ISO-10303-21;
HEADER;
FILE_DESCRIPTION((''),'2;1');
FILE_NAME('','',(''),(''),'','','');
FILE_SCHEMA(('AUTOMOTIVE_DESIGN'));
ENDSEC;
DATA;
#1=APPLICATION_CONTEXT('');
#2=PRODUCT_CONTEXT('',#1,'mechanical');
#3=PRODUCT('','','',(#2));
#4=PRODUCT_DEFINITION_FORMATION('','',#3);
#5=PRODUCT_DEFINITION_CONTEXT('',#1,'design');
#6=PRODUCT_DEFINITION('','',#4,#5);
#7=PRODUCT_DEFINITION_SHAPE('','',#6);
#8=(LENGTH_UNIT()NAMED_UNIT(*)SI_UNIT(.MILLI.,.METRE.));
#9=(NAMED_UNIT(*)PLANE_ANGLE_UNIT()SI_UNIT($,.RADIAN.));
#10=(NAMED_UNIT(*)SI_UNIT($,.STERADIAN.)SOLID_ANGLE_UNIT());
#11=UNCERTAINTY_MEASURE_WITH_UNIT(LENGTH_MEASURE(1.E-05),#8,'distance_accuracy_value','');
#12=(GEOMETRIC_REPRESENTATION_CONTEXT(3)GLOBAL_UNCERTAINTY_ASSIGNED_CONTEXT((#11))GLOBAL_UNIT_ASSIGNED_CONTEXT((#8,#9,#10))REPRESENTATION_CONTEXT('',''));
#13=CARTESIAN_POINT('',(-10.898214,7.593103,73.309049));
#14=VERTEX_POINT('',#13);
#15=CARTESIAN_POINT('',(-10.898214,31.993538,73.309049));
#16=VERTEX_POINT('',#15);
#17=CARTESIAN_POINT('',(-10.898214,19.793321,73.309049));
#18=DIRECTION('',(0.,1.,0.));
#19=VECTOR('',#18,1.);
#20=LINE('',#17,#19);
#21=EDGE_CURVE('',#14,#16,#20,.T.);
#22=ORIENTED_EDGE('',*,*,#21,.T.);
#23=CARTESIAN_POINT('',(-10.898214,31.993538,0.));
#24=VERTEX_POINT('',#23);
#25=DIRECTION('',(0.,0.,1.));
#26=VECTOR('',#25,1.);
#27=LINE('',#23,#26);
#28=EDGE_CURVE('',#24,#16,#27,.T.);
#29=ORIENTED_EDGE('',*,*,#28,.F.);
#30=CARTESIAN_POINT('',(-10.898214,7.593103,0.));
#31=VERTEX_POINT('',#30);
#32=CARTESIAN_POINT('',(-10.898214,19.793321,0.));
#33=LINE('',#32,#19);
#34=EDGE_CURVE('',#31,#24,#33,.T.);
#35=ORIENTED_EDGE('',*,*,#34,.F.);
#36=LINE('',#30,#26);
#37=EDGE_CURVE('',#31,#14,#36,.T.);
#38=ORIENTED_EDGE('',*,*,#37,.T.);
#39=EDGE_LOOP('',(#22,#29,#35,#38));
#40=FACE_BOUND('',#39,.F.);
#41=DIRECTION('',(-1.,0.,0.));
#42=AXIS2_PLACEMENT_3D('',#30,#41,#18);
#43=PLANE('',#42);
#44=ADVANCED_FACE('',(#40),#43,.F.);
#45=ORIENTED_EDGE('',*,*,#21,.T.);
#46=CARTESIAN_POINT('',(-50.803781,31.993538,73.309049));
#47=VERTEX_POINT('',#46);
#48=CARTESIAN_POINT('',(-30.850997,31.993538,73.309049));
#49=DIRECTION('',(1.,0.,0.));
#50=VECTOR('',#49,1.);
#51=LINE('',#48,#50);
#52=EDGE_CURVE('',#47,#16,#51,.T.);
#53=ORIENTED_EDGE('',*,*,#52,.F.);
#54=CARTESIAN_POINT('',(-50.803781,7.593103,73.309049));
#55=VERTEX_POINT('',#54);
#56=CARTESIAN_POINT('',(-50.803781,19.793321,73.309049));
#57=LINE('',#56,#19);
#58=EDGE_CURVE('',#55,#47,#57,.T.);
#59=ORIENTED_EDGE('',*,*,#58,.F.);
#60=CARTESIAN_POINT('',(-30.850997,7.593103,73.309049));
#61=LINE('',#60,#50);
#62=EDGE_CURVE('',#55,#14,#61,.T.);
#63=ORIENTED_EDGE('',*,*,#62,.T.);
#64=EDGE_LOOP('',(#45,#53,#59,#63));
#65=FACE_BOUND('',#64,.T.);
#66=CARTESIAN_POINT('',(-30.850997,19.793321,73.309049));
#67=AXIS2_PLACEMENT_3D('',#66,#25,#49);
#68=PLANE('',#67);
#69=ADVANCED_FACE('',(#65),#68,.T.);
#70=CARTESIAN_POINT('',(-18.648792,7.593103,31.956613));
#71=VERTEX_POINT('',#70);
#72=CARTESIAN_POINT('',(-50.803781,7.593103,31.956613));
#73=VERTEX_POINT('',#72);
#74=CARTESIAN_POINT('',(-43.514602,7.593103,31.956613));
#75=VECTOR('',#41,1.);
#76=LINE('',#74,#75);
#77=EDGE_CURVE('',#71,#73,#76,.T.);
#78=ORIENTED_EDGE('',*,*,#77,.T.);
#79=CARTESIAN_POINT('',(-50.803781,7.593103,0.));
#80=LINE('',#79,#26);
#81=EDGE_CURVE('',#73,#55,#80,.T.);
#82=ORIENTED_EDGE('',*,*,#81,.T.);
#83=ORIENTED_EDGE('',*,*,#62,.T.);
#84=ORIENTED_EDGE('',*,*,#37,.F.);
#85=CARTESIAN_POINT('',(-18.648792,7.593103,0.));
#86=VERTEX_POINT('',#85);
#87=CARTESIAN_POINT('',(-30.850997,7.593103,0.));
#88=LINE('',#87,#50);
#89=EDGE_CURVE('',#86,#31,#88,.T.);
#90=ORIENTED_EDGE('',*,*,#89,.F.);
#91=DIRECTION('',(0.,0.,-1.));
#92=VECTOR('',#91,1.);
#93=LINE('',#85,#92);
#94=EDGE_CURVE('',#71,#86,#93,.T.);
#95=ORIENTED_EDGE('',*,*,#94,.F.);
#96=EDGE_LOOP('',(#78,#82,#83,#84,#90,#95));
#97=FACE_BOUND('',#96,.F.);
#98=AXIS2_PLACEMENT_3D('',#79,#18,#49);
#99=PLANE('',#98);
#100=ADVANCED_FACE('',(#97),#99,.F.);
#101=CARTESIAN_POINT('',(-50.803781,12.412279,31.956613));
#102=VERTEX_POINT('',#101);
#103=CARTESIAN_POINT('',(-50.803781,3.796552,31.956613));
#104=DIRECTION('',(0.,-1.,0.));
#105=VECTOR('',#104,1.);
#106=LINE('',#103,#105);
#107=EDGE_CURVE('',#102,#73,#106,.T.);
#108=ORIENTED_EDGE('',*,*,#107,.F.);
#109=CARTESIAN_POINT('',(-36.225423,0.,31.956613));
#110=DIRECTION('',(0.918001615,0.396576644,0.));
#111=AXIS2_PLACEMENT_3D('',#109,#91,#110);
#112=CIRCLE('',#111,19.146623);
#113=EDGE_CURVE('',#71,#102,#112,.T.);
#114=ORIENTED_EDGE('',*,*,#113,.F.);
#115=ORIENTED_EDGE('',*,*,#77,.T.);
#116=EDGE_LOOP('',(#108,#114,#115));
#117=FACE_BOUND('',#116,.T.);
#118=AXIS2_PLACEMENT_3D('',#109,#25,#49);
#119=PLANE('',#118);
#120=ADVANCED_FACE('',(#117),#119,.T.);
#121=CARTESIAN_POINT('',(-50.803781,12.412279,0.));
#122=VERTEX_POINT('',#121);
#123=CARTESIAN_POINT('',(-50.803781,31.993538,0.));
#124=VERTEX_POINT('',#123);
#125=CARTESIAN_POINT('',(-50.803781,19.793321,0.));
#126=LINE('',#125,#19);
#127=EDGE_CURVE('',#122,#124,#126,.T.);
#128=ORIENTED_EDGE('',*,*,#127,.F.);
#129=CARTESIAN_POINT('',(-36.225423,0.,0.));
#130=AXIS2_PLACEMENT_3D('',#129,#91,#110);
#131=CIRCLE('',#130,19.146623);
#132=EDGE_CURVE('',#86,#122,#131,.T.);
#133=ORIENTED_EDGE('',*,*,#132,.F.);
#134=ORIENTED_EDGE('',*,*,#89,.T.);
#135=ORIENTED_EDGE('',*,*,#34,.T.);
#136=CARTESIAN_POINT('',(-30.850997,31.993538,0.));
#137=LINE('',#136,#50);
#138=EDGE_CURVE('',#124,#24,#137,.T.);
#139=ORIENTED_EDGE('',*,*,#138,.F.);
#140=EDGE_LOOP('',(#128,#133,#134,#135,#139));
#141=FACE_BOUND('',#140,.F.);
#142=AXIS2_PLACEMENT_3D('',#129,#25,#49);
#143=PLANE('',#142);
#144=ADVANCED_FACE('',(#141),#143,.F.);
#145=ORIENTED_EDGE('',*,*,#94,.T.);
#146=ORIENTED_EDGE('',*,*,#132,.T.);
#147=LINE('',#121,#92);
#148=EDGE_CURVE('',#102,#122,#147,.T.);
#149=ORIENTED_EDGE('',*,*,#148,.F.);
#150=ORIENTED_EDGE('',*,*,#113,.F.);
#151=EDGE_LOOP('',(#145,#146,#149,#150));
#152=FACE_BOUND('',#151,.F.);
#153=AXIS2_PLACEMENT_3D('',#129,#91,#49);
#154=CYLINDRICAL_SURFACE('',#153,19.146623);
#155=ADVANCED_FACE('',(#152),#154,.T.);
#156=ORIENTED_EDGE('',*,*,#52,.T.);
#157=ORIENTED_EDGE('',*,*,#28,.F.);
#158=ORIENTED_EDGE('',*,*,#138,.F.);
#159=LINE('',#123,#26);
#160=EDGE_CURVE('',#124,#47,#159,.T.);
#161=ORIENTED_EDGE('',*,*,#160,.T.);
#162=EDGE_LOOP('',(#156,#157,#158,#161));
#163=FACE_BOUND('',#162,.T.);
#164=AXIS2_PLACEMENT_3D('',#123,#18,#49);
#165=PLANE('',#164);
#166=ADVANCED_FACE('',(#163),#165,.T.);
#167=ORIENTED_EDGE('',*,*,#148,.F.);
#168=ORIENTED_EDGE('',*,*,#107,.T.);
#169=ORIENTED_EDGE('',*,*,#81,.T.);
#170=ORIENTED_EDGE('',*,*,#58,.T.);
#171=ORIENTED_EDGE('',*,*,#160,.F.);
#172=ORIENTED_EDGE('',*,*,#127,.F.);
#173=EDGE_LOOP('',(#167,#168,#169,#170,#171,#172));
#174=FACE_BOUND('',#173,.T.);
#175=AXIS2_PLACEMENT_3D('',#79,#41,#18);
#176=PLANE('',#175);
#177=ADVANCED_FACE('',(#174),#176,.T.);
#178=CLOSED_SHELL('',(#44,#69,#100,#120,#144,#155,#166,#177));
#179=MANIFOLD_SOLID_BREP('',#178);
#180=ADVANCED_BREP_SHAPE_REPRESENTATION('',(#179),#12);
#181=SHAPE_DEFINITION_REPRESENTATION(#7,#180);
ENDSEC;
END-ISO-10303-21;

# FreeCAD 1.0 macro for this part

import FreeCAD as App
import Part
import Sketcher
from FreeCAD import Vector
Q = App.Units.Quantity

doc = App.newDocument("Part")
body = doc.addObject("PartDesign::Body", "Body")

# Sketch on XY plane
sketch1 = body.newObject("Sketcher::SketchObject", "Sketch")
sketch1.AttachmentSupport = (doc.getObject("XY_Plane"), [""])
sketch1.MapMode = "FlatFace"
sketch1.addGeometry(Part.Circle(Vector(-36, 0, 0), Vector(0, 0, 1), 19), False)
sketch1.addConstraint([
    Sketcher.Constraint("PointOnObject", 0, 3, -1),
    Sketcher.Constraint("Diameter", 0, Q("38.293246 mm")),
    Sketcher.Constraint("DistanceX", 0, 3, -1, 1, Q("36.225423 mm")),
])
pad1 = body.newObject("PartDesign::Pad", "Pad")
pad1.Profile = sketch1
pad1.Length = 31.956613

# Sketch on XY plane
sketch2 = body.newObject("Sketcher::SketchObject", "Sketch001")
sketch2.AttachmentSupport = (doc.getObject("XY_Plane"), [""])
sketch2.MapMode = "FlatFace"
sketch2.addGeometry([
    Part.LineSegment(Vector(-51, 32, 0), Vector(-51, 8, 0)),
    Part.LineSegment(Vector(-51, 8, 0), Vector(-11, 8, 0)),
    Part.LineSegment(Vector(-11, 8, 0), Vector(-11, 32, 0)),
    Part.LineSegment(Vector(-11, 32, 0), Vector(-51, 32, 0)),
], False)
sketch2.addConstraint([
    Sketcher.Constraint("Coincident", 0, 2, 1, 1),
    Sketcher.Constraint("Coincident", 1, 2, 2, 1),
    Sketcher.Constraint("Coincident", 2, 2, 3, 1),
    Sketcher.Constraint("Coincident", 3, 2, 0, 1),
    Sketcher.Constraint("Vertical", 0),
    Sketcher.Constraint("Horizontal", 1),
    Sketcher.Constraint("Vertical", 2),
    Sketcher.Constraint("Horizontal", 3),
    Sketcher.Constraint("DistanceX", 1, 1, 1, 2, Q("39.905567 mm")),
    Sketcher.Constraint("DistanceY", 0, 2, 0, 1, Q("24.400435 mm")),
    Sketcher.Constraint("DistanceX", 0, 2, -1, 1, Q("50.803781 mm")),
    Sketcher.Constraint("DistanceY", -1, 1, 2, 2, Q("31.993538 mm")),
])
pad2 = body.newObject("PartDesign::Pad", "Pad001")
pad2.Profile = sketch2
pad2.Length = 73.309049

doc.recompute()
